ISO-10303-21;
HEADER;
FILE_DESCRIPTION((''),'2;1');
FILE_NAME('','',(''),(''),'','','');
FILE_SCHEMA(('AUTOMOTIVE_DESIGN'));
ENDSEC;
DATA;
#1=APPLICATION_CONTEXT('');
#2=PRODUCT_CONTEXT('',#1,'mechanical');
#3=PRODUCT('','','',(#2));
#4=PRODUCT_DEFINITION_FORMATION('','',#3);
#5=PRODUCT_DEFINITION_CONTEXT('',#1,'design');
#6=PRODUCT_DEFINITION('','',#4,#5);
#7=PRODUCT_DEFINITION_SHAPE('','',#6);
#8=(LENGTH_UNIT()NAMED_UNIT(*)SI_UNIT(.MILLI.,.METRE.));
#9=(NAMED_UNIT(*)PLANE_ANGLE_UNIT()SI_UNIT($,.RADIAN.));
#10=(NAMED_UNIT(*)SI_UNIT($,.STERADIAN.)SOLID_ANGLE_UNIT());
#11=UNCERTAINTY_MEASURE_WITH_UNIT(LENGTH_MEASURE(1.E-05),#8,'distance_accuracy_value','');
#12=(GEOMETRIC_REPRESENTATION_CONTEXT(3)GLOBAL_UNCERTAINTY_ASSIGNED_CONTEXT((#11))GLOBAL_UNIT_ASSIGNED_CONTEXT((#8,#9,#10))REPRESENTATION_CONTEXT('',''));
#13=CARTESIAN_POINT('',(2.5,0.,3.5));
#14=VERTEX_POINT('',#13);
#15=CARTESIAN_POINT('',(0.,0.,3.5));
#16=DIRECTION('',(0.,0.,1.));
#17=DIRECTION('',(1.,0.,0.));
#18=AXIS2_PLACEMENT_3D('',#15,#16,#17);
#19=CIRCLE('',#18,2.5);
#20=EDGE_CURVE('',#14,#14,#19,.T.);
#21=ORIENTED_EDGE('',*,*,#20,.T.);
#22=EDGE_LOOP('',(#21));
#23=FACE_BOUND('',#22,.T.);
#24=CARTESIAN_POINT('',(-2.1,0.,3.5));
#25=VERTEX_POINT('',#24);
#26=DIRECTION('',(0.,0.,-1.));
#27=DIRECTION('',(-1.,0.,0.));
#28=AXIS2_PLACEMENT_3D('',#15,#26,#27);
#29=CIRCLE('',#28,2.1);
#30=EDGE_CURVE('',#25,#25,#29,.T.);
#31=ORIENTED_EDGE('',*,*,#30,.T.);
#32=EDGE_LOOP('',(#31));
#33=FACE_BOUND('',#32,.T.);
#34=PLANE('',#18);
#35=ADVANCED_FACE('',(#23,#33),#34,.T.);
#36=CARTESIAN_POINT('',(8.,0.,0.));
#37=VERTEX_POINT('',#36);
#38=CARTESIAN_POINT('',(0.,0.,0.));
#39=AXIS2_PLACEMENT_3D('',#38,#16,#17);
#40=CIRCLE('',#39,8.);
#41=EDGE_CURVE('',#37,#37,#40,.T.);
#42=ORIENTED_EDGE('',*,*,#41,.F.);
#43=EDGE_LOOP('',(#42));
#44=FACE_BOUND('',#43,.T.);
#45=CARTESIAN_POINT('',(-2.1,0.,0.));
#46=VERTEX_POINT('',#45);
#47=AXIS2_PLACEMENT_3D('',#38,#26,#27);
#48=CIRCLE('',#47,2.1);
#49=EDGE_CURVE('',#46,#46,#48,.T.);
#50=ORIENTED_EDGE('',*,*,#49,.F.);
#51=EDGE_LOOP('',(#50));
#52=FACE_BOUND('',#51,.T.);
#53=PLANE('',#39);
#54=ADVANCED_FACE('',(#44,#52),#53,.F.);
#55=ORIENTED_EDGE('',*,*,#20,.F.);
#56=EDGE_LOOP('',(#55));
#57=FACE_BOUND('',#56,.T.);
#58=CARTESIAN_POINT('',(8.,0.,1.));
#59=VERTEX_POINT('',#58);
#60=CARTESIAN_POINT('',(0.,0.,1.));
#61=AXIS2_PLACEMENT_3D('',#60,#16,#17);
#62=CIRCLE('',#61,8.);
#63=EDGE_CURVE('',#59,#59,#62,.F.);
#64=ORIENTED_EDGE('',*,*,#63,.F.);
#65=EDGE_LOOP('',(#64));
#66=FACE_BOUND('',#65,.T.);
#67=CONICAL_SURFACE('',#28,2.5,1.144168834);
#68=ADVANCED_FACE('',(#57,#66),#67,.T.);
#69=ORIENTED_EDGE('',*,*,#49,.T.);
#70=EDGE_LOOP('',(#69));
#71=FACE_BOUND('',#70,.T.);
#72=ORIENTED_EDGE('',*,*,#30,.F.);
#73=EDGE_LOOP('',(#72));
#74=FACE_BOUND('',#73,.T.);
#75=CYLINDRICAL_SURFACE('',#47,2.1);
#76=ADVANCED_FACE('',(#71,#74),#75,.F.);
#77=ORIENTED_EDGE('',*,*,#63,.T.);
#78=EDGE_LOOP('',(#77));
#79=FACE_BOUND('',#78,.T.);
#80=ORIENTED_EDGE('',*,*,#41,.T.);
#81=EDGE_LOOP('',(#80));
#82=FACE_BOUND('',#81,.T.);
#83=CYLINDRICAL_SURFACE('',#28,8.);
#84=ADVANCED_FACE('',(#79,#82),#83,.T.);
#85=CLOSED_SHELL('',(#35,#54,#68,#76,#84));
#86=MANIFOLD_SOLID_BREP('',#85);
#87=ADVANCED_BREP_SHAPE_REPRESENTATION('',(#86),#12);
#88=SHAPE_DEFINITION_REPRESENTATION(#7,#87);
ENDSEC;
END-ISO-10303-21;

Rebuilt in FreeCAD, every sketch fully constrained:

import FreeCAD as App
import Part
import Sketcher


def edges_at(feature, points):
    """Names of the edges that pass closest to the given points."""
    edges = feature.Shape.Edges
    near = lambda p: min(range(len(edges)), key=lambda i: edges[i].distToShape(Part.Vertex(*p))[0])
    return sorted({f"Edge{near(p) + 1}" for p in points})

doc = App.newDocument("Part")
body = doc.addObject("PartDesign::Body", "Body")

# Sketch on XY plane
sketch1 = body.newObject("Sketcher::SketchObject", "Sketch")
sketch1.AttachmentSupport = (doc.getObject("XY_Plane"), [""])
sketch1.MapMode = "FlatFace"
sketch1.addGeometry(Part.Circle(App.Vector(0, 0, 0), App.Vector(0, 0, 1), 8), False)
sketch1.addConstraint([
    Sketcher.Constraint("Coincident", 0, 3, -1, 1),
    Sketcher.Constraint("Diameter", 0, 16.0),
])
pad1 = body.newObject("PartDesign::Pad", "Pad")
pad1.Profile = sketch1
pad1.Length = 3.5
doc.recompute()

chamfer = body.newObject("PartDesign::Chamfer", "Chamfer")
chamfer.Base = (pad1, edges_at(pad1, [(-8, 0, 3.5)]))
chamfer.ChamferType = "Two distances"
chamfer.Size = 2.5
chamfer.Size2 = 5.5

# Sketch on XY plane
sketch2 = body.newObject("Sketcher::SketchObject", "Sketch001")
sketch2.AttachmentSupport = (doc.getObject("XY_Plane"), [""])
sketch2.MapMode = "FlatFace"
sketch2.addGeometry(Part.Circle(App.Vector(0, 0, 0), App.Vector(0, 0, 1), 2.1), False)
sketch2.addConstraint([
    Sketcher.Constraint("Coincident", 0, 3, -1, 1),
    Sketcher.Constraint("Diameter", 0, 4.2),
])
doc.recompute()
hole = body.newObject("PartDesign::Hole", "Hole")
hole.Profile = sketch2
hole.ThreadType = "None"
hole.Diameter = 4.2
hole.DepthType = "ThroughAll"
hole.Reversed = True

doc.recompute()
